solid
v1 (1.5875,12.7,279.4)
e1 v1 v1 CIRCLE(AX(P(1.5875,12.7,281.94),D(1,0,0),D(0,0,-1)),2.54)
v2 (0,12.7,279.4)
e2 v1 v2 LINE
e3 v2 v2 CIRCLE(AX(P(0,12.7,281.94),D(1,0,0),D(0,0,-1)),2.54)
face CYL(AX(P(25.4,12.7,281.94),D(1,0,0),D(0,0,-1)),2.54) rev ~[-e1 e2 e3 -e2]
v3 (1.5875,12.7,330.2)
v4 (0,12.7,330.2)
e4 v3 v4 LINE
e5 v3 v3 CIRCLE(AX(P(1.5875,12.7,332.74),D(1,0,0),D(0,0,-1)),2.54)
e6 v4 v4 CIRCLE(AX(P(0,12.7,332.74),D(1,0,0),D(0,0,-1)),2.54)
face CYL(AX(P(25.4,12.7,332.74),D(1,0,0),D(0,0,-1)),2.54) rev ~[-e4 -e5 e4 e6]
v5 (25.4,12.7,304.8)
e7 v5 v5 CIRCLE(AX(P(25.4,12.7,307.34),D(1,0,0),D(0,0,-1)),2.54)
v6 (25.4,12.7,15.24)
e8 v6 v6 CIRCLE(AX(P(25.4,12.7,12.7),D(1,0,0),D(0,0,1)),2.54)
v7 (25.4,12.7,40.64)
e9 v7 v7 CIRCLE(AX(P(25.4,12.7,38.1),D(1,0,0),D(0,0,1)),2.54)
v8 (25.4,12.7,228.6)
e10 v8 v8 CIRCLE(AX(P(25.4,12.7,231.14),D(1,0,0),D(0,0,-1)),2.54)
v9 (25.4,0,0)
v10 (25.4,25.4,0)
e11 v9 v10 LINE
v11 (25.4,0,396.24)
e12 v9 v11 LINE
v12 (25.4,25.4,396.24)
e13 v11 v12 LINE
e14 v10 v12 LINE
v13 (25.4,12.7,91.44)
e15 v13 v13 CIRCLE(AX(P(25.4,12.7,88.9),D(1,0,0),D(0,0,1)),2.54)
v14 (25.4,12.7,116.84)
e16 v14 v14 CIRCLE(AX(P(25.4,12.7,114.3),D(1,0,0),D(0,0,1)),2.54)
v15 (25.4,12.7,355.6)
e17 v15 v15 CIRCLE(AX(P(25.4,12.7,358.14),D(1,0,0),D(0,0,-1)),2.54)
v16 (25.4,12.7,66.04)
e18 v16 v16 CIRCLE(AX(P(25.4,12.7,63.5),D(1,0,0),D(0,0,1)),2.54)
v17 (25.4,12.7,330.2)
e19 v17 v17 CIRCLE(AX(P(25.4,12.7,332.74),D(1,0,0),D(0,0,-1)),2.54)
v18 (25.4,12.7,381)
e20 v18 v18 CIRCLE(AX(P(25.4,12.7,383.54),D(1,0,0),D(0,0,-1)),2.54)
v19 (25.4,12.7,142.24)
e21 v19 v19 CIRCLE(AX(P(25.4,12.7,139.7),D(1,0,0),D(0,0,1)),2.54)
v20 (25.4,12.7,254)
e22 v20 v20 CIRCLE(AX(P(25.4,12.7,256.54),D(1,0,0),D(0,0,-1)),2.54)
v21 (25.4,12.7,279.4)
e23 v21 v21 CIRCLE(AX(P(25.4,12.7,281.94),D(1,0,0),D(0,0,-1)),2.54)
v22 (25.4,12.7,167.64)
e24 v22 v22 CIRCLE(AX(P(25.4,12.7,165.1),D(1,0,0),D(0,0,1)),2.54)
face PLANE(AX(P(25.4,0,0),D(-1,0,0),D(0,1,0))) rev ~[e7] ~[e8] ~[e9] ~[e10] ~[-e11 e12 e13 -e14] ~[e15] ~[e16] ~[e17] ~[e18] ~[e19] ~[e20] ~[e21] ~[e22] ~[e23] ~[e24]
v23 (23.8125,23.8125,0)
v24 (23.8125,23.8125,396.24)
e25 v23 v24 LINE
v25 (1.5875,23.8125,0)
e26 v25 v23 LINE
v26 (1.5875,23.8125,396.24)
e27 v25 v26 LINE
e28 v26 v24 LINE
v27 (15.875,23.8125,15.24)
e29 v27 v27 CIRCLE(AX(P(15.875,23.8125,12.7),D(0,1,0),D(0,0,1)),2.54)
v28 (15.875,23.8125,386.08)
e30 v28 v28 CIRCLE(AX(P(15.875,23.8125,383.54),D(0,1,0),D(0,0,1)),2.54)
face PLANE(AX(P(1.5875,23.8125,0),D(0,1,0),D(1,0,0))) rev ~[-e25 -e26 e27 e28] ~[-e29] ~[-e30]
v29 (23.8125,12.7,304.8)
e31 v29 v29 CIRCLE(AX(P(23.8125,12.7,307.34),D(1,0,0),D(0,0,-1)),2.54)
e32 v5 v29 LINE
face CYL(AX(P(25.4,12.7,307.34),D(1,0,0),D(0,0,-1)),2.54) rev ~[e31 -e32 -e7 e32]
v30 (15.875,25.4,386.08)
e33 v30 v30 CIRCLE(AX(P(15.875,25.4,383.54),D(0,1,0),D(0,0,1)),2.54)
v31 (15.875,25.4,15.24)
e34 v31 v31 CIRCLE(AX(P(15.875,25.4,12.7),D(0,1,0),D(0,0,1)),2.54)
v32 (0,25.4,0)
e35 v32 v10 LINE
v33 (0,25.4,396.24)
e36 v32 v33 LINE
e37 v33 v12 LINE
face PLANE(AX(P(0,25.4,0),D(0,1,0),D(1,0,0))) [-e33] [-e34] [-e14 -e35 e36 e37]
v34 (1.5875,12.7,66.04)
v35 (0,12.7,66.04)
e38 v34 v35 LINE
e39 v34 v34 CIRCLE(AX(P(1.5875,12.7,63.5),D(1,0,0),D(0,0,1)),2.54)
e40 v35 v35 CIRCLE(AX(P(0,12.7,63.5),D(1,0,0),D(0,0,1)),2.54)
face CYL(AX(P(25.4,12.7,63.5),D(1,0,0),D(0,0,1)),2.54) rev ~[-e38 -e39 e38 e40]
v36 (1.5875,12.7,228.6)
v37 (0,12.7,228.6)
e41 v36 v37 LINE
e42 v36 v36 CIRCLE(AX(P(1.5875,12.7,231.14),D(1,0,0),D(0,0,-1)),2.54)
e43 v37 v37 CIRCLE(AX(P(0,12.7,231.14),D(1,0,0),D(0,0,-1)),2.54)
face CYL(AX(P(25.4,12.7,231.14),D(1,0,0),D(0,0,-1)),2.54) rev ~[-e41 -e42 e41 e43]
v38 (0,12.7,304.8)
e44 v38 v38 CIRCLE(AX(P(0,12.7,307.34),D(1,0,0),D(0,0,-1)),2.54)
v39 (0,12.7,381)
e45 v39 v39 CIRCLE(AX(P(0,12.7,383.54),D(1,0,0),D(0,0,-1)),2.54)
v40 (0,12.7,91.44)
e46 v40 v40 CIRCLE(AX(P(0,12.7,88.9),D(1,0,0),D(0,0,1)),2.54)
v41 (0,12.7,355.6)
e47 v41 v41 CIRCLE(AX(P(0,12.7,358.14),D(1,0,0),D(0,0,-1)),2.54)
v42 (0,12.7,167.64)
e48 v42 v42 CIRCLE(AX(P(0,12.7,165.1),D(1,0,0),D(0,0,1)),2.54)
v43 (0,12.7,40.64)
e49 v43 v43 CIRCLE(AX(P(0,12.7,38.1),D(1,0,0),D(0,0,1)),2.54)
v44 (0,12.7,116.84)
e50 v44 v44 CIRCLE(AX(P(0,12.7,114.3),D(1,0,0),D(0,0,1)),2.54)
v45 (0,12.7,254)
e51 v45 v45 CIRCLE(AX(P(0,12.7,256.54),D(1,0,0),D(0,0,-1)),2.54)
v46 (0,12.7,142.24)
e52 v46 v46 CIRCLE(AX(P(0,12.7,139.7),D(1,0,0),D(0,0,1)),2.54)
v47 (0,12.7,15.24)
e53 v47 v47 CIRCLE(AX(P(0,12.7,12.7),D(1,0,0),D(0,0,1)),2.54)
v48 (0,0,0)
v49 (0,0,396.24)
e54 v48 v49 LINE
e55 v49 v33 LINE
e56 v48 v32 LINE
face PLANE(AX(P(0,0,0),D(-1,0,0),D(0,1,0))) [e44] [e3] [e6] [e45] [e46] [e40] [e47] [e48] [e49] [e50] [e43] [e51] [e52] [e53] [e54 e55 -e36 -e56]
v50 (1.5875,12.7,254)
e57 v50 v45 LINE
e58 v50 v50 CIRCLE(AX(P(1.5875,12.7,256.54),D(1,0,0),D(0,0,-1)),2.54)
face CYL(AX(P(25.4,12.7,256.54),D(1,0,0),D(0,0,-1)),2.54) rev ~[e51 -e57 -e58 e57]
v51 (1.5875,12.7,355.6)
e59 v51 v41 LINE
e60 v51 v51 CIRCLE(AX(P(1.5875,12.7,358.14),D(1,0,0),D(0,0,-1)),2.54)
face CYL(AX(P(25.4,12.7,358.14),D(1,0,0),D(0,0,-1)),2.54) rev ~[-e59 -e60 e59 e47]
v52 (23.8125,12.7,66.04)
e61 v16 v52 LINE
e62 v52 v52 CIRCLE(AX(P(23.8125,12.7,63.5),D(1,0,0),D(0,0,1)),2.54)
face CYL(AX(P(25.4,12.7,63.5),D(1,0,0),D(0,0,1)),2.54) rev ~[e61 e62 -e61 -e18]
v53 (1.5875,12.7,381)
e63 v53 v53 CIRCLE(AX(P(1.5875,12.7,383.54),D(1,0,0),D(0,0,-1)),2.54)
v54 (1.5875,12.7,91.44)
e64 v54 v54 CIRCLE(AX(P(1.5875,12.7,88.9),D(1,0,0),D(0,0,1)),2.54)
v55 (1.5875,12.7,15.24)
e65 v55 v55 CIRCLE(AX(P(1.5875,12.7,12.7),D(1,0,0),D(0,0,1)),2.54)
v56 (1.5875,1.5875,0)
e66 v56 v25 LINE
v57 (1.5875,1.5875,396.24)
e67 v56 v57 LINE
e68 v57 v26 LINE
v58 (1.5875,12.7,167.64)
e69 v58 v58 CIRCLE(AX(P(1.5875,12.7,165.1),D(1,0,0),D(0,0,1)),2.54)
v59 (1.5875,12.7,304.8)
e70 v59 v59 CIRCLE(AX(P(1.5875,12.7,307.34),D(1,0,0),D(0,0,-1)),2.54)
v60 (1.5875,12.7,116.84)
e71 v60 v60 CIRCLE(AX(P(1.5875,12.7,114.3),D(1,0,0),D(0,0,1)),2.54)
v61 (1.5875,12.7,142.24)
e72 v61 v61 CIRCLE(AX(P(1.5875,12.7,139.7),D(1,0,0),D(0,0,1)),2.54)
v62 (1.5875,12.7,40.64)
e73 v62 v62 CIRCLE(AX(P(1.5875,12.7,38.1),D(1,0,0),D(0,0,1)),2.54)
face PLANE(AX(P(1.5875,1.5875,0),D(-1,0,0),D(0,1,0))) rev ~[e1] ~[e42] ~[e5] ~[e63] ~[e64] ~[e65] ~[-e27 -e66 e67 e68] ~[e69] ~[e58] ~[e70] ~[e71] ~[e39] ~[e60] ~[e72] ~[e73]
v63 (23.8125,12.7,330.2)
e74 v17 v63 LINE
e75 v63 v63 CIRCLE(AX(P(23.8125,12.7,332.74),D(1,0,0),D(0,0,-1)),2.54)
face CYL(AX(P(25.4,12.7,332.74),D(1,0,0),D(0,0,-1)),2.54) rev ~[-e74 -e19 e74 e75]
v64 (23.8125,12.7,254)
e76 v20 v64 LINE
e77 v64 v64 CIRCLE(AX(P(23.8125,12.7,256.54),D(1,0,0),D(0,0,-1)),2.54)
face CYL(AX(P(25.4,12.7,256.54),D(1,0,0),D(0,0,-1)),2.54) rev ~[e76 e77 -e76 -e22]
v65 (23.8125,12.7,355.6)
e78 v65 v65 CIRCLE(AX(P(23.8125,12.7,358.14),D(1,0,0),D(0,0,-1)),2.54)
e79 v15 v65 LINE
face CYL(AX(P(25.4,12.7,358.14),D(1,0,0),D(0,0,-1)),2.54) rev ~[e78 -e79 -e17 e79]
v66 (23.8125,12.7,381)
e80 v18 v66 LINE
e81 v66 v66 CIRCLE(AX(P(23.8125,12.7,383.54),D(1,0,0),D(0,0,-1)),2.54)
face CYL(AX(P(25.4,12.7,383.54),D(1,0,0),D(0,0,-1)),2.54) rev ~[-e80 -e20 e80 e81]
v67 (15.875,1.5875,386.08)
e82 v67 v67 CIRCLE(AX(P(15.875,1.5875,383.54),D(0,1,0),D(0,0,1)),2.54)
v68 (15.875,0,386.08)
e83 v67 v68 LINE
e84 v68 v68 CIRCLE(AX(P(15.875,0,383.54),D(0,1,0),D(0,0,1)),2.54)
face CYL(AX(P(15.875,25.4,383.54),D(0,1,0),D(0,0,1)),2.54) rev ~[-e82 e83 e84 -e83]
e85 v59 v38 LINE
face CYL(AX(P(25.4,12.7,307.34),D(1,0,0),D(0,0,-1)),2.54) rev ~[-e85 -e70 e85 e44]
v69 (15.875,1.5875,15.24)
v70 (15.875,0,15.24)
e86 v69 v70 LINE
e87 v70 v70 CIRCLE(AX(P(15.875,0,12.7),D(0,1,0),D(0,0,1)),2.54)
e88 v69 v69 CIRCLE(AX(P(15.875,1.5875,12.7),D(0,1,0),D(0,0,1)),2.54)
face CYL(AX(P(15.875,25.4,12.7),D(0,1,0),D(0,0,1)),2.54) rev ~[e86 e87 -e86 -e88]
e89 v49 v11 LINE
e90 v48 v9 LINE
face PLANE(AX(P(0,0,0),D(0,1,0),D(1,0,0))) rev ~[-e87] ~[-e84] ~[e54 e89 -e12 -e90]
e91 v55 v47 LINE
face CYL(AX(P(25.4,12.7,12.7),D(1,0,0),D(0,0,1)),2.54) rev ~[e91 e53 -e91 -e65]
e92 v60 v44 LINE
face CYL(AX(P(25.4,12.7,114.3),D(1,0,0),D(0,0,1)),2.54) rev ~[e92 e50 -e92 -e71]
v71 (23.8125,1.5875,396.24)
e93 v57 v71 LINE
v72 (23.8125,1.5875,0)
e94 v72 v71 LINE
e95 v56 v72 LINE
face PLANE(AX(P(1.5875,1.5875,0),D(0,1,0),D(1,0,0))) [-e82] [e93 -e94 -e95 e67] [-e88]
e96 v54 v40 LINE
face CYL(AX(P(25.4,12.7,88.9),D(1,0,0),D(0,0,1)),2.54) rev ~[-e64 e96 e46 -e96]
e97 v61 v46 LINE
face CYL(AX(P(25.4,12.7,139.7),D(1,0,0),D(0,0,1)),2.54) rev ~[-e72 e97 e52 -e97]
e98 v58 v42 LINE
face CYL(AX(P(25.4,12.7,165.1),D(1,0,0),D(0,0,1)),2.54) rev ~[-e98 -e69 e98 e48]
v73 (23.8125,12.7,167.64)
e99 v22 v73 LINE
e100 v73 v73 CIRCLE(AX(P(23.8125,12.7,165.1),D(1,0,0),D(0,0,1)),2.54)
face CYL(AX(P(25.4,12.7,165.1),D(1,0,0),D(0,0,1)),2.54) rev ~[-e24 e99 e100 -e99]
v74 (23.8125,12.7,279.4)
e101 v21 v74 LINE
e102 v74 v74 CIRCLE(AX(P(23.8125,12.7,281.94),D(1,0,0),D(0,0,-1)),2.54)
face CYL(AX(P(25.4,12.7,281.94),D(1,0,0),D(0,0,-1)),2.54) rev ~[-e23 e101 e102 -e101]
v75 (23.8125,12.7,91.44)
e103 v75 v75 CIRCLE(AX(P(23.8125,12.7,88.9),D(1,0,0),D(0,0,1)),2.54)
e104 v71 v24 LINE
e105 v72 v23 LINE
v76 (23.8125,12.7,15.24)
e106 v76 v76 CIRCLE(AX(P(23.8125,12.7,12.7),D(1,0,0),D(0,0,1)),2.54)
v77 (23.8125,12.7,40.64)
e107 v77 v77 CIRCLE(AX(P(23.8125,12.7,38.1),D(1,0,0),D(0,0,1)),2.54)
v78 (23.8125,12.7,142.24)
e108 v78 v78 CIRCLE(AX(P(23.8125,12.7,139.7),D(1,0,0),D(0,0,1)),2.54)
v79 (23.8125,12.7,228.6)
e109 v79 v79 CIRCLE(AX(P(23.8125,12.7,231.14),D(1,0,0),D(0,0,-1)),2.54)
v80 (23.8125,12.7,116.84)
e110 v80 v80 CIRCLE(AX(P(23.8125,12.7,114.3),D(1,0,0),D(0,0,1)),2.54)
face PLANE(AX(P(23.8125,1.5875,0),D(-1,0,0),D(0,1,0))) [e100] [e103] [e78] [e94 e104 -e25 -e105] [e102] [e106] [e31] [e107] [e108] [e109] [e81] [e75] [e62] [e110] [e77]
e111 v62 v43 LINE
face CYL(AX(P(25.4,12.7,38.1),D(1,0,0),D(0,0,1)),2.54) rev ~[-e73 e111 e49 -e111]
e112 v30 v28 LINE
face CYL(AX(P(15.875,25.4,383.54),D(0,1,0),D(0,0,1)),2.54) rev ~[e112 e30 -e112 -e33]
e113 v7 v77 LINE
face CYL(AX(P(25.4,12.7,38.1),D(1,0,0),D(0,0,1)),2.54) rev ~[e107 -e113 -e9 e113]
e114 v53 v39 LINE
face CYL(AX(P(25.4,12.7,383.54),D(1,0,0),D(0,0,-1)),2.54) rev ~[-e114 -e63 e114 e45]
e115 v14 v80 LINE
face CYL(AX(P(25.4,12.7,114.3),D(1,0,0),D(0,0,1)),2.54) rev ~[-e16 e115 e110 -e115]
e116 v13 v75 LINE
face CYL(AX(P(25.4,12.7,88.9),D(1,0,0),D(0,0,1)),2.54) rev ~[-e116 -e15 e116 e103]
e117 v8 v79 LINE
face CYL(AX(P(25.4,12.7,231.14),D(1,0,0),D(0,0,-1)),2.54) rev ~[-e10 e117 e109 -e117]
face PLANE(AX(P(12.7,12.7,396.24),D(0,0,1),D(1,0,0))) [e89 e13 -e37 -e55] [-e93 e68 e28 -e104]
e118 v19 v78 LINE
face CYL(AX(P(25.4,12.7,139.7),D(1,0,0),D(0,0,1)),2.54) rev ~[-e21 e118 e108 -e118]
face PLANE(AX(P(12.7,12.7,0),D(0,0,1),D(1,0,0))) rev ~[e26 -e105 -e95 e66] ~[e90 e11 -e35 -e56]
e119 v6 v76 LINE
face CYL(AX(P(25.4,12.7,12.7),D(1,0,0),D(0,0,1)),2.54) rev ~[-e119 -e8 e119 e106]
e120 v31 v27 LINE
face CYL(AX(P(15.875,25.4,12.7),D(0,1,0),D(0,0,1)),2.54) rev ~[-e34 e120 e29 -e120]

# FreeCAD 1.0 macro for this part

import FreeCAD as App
import Part
import Sketcher
from FreeCAD import Vector
Q = App.Units.Quantity


def add_polygon(sketch, points):
    """Adds a closed chain of lines whose ends are joined by coincident constraints."""
    first, n = sketch.GeometryCount, len(points)
    for a, b in zip(points, points[1:] + points[:1]):
        sketch.addGeometry(Part.LineSegment(App.Vector(*a, 0), App.Vector(*b, 0)), False)
    for i in range(n):
        sketch.addConstraint(Sketcher.Constraint("Coincident", first + i, 2, first + (i + 1) % n, 1))

doc = App.newDocument("Part")
body = doc.addObject("PartDesign::Body", "Body")

sketch1 = doc.addObject("Sketcher::SketchObject", "Sketch")
body.addObject(sketch1)
sketch1.AttachmentSupport = (doc.XY_Plane, [""])
sketch1.MapMode = "FlatFace"
add_polygon(sketch1, [(0, 25), (0, 0), (25, 0), (25, 25)])
add_polygon(sketch1, [(24, 2), (2, 2), (2, 24), (24, 24)])
sketch1.addConstraint([
    Sketcher.Constraint("Vertical", 0),
    Sketcher.Constraint("Horizontal", 1),
    Sketcher.Constraint("Vertical", 2),
    Sketcher.Constraint("Horizontal", 3),
    Sketcher.Constraint("Horizontal", 4),
    Sketcher.Constraint("Vertical", 5),
    Sketcher.Constraint("Horizontal", 6),
    Sketcher.Constraint("Vertical", 7),
    Sketcher.Constraint("Coincident", 0, 2, -1, 1),
    Sketcher.Constraint("Equal", 3, 0),
    Sketcher.Constraint("Equal", 6, 5),
    Sketcher.Constraint("DistanceX", 1, 1, 1, 2, Q("1 in")),
    Sketcher.Constraint("DistanceX", 4, 2, 4, 1, Q("0.875 in")),
    Sketcher.Constraint("DistanceX", -1, 1, 4, 2, Q("0.0625 in")),
    Sketcher.Constraint("DistanceY", -1, 1, 4, 2, Q("0.0625 in")),
])
pad1 = doc.addObject("PartDesign::Pad", "Pad")
body.addObject(pad1)
pad1.Profile = sketch1
pad1.Length = Q("15.6 in")

sketch2 = doc.addObject("Sketcher::SketchObject", "Sketch001")
body.addObject(sketch2)
sketch2.AttachmentSupport = (doc.XZ_Plane, [""])
sketch2.MapMode = "FlatFace"
sketch2.AttachmentOffset = App.Placement(Vector(0, 0, -1 * 25.4), App.Rotation())
sketch2.addGeometry([
    Part.Circle(Vector(15.9, 383.5, 0), Vector(0, 0, 1), 2.5),
    Part.Circle(Vector(15.9, 12.7, 0), Vector(0, 0, 1), 2.5),
], False)
sketch2.addConstraint([
    Sketcher.Constraint("Equal", 0, 1),
    Sketcher.Constraint("Vertical", 0, 3, 1, 3),
    Sketcher.Constraint("Diameter", 0, Q("0.2 in")),
    Sketcher.Constraint("DistanceY", -1, 1, 0, 3, Q("15.1 in")),
    Sketcher.Constraint("DistanceY", -1, 1, 1, 3, Q("0.5 in")),
    Sketcher.Constraint("DistanceX", -1, 1, 0, 3, Q("0.625 in")),
])
pocket1 = doc.addObject("PartDesign::Pocket", "Pocket")
body.addObject(pocket1)
pocket1.Profile = sketch2
pocket1.Type = "ThroughAll"
pocket1.Reversed = True

sketch3 = doc.addObject("Sketcher::SketchObject", "Sketch002")
body.addObject(sketch3)
sketch3.AttachmentSupport = (doc.YZ_Plane, [""])
sketch3.MapMode = "FlatFace"
sketch3.AttachmentOffset = App.Placement(Vector(0, 0, 1 * 25.4), App.Rotation())
sketch3.addGeometry([
    Part.Circle(Vector(12.7, 383.5, 0), Vector(0, 0, 1), 2.5),
    Part.Circle(Vector(12.7, 358.1, 0), Vector(0, 0, 1), 2.5),
    Part.Circle(Vector(12.7, 332.7, 0), Vector(0, 0, 1), 2.5),
    Part.Circle(Vector(12.7, 307.3, 0), Vector(0, 0, 1), 2.5),
    Part.Circle(Vector(12.7, 281.9, 0), Vector(0, 0, 1), 2.5),
    Part.Circle(Vector(12.7, 256.5, 0), Vector(0, 0, 1), 2.5),
    Part.Circle(Vector(12.7, 231.1, 0), Vector(0, 0, 1), 2.5),
    Part.Circle(Vector(12.7, 165.1, 0), Vector(0, 0, 1), 2.5),
    Part.Circle(Vector(12.7, 139.7, 0), Vector(0, 0, 1), 2.5),
    Part.Circle(Vector(12.7, 114.3, 0), Vector(0, 0, 1), 2.5),
    Part.Circle(Vector(12.7, 88.9, 0), Vector(0, 0, 1), 2.5),
    Part.Circle(Vector(12.7, 63.5, 0), Vector(0, 0, 1), 2.5),
    Part.Circle(Vector(12.7, 38.1, 0), Vector(0, 0, 1), 2.5),
    Part.Circle(Vector(12.7, 12.7, 0), Vector(0, 0, 1), 2.5),
], False)
sketch3.addConstraint([
    Sketcher.Constraint("Equal", 0, 1),
    Sketcher.Constraint("Equal", 1, 2),
    Sketcher.Constraint("Equal", 2, 3),
    Sketcher.Constraint("Equal", 3, 4),
    Sketcher.Constraint("Equal", 4, 5),
    Sketcher.Constraint("Equal", 5, 6),
    Sketcher.Constraint("Equal", 6, 7),
    Sketcher.Constraint("Equal", 7, 8),
    Sketcher.Constraint("Equal", 8, 9),
    Sketcher.Constraint("Equal", 9, 10),
    Sketcher.Constraint("Equal", 10, 11),
    Sketcher.Constraint("Equal", 11, 12),
    Sketcher.Constraint("Equal", 12, 13),
    Sketcher.Constraint("Vertical", 0, 3, 1, 3),
    Sketcher.Constraint("Vertical", 1, 3, 2, 3),
    Sketcher.Constraint("Vertical", 2, 3, 3, 3),
    Sketcher.Constraint("Vertical", 3, 3, 4, 3),
    Sketcher.Constraint("Vertical", 4, 3, 5, 3),
    Sketcher.Constraint("Vertical", 5, 3, 6, 3),
    Sketcher.Constraint("Vertical", 6, 3, 7, 3),
    Sketcher.Constraint("Vertical", 7, 3, 8, 3),
    Sketcher.Constraint("Vertical", 8, 3, 9, 3),
    Sketcher.Constraint("Vertical", 9, 3, 10, 3),
    Sketcher.Constraint("Vertical", 10, 3, 11, 3),
    Sketcher.Constraint("Vertical", 11, 3, 12, 3),
    Sketcher.Constraint("Vertical", 12, 3, 13, 3),
    Sketcher.Constraint("Diameter", 0, Q("0.2 in")),
    Sketcher.Constraint("DistanceY", 1, 3, 0, 3, Q("1 in")),
    Sketcher.Constraint("DistanceY", 2, 3, 1, 3, Q("1 in")),
    Sketcher.Constraint("DistanceY", 3, 3, 2, 3, Q("1 in")),
    Sketcher.Constraint("DistanceY", 4, 3, 3, 3, Q("1 in")),
    Sketcher.Constraint("DistanceY", 5, 3, 4, 3, Q("1 in")),
    Sketcher.Constraint("DistanceY", 6, 3, 5, 3, Q("1 in")),
    Sketcher.Constraint("DistanceY", 8, 3, 7, 3, Q("1 in")),
    Sketcher.Constraint("DistanceY", 9, 3, 8, 3, Q("1 in")),
    Sketcher.Constraint("DistanceY", 10, 3, 9, 3, Q("1 in")),
    Sketcher.Constraint("DistanceY", 11, 3, 10, 3, Q("1 in")),
    Sketcher.Constraint("DistanceY", 12, 3, 11, 3, Q("1 in")),
    Sketcher.Constraint("DistanceY", 13, 3, 12, 3, Q("1 in")),
    Sketcher.Constraint("DistanceX", -1, 1, 0, 3, Q("0.5 in")),
    Sketcher.Constraint("DistanceY", -1, 1, 0, 3, Q("15.1 in")),
    Sketcher.Constraint("DistanceY", -1, 1, 7, 3, Q("6.5 in")),
])
pocket2 = doc.addObject("PartDesign::Pocket", "Pocket001")
body.addObject(pocket2)
pocket2.Profile = sketch3
pocket2.Type = "ThroughAll"

doc.recompute()
